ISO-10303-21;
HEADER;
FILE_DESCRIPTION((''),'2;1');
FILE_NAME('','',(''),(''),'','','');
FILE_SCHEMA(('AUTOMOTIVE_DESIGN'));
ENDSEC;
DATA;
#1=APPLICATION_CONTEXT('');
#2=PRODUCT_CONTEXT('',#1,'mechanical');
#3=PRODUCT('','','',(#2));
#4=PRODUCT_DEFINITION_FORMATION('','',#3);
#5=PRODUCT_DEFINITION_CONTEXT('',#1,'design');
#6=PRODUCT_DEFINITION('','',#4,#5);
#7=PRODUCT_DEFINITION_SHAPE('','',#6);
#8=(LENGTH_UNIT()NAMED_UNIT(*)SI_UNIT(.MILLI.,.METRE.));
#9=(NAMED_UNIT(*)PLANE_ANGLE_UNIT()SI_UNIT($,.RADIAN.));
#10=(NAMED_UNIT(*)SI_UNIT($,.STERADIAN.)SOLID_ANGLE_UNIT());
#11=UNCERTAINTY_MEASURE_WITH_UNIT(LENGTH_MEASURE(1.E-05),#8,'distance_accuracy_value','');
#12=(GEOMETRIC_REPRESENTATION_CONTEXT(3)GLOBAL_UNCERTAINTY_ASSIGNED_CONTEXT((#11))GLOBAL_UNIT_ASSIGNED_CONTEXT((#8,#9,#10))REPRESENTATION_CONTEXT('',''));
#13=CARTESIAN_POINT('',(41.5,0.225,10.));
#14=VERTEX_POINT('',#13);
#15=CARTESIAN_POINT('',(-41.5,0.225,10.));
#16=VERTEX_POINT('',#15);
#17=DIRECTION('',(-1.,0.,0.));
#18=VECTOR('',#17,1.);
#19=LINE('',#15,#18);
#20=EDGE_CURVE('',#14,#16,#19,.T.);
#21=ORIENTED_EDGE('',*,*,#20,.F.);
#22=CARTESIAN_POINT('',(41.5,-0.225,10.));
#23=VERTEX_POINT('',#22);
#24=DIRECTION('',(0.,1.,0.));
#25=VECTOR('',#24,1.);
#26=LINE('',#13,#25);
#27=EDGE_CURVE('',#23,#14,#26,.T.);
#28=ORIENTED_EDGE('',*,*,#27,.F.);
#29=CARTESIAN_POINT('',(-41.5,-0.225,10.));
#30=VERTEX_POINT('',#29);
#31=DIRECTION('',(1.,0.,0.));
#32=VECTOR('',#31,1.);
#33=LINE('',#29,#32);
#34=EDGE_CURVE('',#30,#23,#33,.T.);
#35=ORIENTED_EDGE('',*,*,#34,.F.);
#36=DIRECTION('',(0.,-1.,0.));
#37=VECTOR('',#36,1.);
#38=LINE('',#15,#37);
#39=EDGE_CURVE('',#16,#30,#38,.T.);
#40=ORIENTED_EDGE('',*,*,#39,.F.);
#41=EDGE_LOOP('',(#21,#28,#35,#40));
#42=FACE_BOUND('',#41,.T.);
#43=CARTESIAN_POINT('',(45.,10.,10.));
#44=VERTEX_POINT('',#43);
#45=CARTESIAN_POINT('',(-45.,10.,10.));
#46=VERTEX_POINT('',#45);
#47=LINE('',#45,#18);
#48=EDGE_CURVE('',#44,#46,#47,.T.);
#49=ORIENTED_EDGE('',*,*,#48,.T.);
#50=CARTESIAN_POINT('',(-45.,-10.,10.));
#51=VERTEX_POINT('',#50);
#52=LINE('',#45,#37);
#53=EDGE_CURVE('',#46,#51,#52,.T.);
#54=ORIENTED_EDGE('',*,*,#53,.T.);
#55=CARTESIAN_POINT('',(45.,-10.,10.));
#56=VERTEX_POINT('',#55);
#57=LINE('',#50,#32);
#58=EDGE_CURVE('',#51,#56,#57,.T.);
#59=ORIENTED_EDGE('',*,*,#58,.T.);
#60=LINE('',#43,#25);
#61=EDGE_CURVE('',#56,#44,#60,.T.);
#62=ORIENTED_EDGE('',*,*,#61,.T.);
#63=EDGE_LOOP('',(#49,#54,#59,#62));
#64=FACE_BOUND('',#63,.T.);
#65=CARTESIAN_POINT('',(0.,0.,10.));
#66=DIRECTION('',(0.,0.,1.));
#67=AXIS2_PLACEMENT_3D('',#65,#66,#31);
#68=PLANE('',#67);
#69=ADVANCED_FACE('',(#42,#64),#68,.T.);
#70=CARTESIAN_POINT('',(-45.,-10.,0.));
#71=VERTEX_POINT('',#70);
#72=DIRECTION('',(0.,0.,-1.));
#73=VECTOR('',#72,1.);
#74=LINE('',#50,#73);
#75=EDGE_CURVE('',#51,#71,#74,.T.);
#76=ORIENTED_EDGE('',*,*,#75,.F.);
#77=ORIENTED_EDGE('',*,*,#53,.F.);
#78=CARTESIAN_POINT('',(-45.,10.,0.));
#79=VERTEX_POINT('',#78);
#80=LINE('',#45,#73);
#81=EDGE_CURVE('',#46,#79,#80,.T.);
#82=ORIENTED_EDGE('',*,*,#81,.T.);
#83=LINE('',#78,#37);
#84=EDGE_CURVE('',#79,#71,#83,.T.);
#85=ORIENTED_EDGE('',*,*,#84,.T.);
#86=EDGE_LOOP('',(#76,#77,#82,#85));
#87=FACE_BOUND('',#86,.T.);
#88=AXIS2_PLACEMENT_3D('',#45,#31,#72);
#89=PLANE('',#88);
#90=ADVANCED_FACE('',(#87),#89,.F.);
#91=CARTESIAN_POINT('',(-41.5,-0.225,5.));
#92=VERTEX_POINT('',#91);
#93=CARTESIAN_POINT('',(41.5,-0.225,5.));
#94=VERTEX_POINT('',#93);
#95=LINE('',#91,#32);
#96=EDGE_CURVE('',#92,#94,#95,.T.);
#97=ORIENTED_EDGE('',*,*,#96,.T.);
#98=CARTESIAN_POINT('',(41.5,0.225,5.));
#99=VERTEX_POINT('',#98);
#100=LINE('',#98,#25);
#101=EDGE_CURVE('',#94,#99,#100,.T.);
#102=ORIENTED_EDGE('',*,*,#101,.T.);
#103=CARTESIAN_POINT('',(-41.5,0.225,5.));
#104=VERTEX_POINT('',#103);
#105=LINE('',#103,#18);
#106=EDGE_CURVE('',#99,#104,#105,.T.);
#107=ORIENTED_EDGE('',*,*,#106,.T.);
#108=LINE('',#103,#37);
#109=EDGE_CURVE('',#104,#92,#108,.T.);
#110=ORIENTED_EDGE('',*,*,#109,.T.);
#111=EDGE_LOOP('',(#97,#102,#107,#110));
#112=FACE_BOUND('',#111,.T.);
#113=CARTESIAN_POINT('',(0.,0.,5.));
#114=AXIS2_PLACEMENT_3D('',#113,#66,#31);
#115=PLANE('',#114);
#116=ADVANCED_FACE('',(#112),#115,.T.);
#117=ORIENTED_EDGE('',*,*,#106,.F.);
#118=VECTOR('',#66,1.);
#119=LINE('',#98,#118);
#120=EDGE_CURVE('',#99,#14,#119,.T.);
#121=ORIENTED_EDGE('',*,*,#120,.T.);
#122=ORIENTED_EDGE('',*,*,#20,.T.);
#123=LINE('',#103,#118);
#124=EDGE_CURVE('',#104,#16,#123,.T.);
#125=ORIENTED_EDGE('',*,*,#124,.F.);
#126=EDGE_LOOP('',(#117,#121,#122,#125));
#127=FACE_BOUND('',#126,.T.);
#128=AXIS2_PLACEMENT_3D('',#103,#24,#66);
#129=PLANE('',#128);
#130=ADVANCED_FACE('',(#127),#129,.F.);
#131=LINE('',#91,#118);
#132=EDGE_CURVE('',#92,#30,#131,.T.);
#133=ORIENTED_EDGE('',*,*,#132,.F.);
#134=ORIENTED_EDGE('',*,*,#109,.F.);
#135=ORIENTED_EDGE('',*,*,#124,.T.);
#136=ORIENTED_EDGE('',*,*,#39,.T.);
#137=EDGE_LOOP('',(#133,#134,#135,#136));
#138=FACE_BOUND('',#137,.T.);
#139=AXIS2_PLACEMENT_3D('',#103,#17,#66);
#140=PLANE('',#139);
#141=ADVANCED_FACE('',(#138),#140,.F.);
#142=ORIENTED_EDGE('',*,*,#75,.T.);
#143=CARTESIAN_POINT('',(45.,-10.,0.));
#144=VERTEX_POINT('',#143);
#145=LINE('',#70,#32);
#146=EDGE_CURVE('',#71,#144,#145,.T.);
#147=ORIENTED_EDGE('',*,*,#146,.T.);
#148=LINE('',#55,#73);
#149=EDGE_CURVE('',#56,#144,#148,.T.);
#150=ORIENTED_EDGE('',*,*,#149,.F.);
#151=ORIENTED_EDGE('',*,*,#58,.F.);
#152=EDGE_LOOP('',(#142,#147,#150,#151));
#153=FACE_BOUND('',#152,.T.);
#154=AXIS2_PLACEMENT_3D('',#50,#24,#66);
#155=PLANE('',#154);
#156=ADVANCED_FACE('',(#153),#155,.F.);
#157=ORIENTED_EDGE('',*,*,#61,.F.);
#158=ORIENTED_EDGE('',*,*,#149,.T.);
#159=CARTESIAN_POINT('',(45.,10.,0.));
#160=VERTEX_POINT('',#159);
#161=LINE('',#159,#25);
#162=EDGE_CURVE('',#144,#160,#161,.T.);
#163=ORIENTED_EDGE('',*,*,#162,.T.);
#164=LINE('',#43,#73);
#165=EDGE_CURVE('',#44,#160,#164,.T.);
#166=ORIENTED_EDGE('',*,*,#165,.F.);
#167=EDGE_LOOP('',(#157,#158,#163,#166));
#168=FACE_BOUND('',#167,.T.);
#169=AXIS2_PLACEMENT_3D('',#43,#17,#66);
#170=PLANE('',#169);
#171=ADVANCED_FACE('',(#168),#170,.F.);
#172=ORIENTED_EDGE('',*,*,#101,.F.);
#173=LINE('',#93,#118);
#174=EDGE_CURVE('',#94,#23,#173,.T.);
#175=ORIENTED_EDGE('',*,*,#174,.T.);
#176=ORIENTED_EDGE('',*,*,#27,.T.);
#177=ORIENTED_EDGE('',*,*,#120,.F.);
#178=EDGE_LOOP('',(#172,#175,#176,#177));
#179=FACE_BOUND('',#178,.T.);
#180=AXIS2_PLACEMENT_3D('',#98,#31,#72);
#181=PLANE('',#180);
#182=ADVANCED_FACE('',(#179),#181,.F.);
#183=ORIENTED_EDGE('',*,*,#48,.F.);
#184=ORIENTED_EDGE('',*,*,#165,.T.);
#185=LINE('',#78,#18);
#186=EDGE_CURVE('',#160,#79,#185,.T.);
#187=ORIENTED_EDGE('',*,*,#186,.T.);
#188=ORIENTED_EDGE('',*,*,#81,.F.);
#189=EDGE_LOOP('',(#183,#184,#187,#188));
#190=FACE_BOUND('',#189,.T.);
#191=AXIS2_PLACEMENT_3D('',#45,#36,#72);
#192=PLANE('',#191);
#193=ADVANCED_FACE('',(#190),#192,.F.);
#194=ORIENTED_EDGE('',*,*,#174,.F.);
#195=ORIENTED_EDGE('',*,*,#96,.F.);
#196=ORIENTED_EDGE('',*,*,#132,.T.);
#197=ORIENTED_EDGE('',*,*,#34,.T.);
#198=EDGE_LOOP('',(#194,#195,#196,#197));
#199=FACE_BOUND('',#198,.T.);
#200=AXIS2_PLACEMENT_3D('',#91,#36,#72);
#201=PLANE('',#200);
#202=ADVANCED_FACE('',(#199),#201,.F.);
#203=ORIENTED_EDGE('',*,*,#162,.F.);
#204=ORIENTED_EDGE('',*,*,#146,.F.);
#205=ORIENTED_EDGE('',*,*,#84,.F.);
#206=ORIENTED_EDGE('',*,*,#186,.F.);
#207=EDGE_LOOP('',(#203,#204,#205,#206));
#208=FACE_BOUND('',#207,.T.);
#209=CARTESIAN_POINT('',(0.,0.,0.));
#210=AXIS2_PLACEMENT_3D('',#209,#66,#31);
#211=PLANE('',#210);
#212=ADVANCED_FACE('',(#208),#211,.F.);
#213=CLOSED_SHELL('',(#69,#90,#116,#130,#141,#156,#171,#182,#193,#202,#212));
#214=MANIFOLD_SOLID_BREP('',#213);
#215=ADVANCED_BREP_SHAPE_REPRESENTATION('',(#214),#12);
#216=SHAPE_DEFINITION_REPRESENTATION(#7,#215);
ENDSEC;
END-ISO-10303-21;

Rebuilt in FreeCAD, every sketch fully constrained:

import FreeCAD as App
import Part
import Sketcher

V = App.Vector

doc = App.newDocument("Part")
body = doc.addObject("PartDesign::Body", "Body")

sketch1 = doc.addObject("Sketcher::SketchObject", "Sketch")
body.addObject(sketch1)
sketch1.AttachmentSupport = (doc.XY_Plane, [""])
sketch1.MapMode = "FlatFace"
sketch1.addGeometry(Part.LineSegment(V(-45, 10, 0), V(-45, -10, 0)), False)
sketch1.addGeometry(Part.LineSegment(V(-45, -10, 0), V(45, -10, 0)), False)
sketch1.addGeometry(Part.LineSegment(V(45, -10, 0), V(45, 10, 0)), False)
sketch1.addGeometry(Part.LineSegment(V(45, 10, 0), V(-45, 10, 0)), False)
sketch1.addConstraint(Sketcher.Constraint("Coincident", 0, 2, 1, 1))
sketch1.addConstraint(Sketcher.Constraint("Coincident", 1, 2, 2, 1))
sketch1.addConstraint(Sketcher.Constraint("Coincident", 2, 2, 3, 1))
sketch1.addConstraint(Sketcher.Constraint("Coincident", 3, 2, 0, 1))
sketch1.addConstraint(Sketcher.Constraint("Vertical", 0))
sketch1.addConstraint(Sketcher.Constraint("Horizontal", 1))
sketch1.addConstraint(Sketcher.Constraint("Vertical", 2))
sketch1.addConstraint(Sketcher.Constraint("Horizontal", 3))
sketch1.addConstraint(Sketcher.Constraint("Symmetric", 0, 2, 2, 2, -1, 1))
sketch1.addConstraint(Sketcher.Constraint("DistanceX", 1, 1, 1, 2, 90.0))
sketch1.addConstraint(Sketcher.Constraint("DistanceY", 0, 2, 0, 1, 20.0))
pad1 = doc.addObject("PartDesign::Pad", "Pad")
body.addObject(pad1)
pad1.Profile = sketch1
pad1.Length = 10

sketch2 = doc.addObject("Sketcher::SketchObject", "Sketch001")
body.addObject(sketch2)
sketch2.AttachmentSupport = (doc.XY_Plane, [""])
sketch2.MapMode = "FlatFace"
sketch2.AttachmentOffset = App.Placement(V(0, 0, 10), App.Rotation())
sketch2.addGeometry(Part.LineSegment(V(-41.5, 0.23, 0), V(-41.5, -0.23, 0)), False)
sketch2.addGeometry(Part.LineSegment(V(-41.5, -0.23, 0), V(41.5, -0.23, 0)), False)
sketch2.addGeometry(Part.LineSegment(V(41.5, -0.23, 0), V(41.5, 0.23, 0)), False)
sketch2.addGeometry(Part.LineSegment(V(41.5, 0.23, 0), V(-41.5, 0.23, 0)), False)
sketch2.addConstraint(Sketcher.Constraint("Coincident", 0, 2, 1, 1))
sketch2.addConstraint(Sketcher.Constraint("Coincident", 1, 2, 2, 1))
sketch2.addConstraint(Sketcher.Constraint("Coincident", 2, 2, 3, 1))
sketch2.addConstraint(Sketcher.Constraint("Coincident", 3, 2, 0, 1))
sketch2.addConstraint(Sketcher.Constraint("Vertical", 0))
sketch2.addConstraint(Sketcher.Constraint("Horizontal", 1))
sketch2.addConstraint(Sketcher.Constraint("Vertical", 2))
sketch2.addConstraint(Sketcher.Constraint("Horizontal", 3))
sketch2.addConstraint(Sketcher.Constraint("Symmetric", 0, 2, 2, 2, -1, 1))
sketch2.addConstraint(Sketcher.Constraint("DistanceX", 1, 1, 1, 2, 83.0))
sketch2.addConstraint(Sketcher.Constraint("DistanceY", 0, 2, 0, 1, 0.45))
pocket1 = doc.addObject("PartDesign::Pocket", "Pocket")
body.addObject(pocket1)
pocket1.Profile = sketch2
pocket1.Length = 5

doc.recompute()
